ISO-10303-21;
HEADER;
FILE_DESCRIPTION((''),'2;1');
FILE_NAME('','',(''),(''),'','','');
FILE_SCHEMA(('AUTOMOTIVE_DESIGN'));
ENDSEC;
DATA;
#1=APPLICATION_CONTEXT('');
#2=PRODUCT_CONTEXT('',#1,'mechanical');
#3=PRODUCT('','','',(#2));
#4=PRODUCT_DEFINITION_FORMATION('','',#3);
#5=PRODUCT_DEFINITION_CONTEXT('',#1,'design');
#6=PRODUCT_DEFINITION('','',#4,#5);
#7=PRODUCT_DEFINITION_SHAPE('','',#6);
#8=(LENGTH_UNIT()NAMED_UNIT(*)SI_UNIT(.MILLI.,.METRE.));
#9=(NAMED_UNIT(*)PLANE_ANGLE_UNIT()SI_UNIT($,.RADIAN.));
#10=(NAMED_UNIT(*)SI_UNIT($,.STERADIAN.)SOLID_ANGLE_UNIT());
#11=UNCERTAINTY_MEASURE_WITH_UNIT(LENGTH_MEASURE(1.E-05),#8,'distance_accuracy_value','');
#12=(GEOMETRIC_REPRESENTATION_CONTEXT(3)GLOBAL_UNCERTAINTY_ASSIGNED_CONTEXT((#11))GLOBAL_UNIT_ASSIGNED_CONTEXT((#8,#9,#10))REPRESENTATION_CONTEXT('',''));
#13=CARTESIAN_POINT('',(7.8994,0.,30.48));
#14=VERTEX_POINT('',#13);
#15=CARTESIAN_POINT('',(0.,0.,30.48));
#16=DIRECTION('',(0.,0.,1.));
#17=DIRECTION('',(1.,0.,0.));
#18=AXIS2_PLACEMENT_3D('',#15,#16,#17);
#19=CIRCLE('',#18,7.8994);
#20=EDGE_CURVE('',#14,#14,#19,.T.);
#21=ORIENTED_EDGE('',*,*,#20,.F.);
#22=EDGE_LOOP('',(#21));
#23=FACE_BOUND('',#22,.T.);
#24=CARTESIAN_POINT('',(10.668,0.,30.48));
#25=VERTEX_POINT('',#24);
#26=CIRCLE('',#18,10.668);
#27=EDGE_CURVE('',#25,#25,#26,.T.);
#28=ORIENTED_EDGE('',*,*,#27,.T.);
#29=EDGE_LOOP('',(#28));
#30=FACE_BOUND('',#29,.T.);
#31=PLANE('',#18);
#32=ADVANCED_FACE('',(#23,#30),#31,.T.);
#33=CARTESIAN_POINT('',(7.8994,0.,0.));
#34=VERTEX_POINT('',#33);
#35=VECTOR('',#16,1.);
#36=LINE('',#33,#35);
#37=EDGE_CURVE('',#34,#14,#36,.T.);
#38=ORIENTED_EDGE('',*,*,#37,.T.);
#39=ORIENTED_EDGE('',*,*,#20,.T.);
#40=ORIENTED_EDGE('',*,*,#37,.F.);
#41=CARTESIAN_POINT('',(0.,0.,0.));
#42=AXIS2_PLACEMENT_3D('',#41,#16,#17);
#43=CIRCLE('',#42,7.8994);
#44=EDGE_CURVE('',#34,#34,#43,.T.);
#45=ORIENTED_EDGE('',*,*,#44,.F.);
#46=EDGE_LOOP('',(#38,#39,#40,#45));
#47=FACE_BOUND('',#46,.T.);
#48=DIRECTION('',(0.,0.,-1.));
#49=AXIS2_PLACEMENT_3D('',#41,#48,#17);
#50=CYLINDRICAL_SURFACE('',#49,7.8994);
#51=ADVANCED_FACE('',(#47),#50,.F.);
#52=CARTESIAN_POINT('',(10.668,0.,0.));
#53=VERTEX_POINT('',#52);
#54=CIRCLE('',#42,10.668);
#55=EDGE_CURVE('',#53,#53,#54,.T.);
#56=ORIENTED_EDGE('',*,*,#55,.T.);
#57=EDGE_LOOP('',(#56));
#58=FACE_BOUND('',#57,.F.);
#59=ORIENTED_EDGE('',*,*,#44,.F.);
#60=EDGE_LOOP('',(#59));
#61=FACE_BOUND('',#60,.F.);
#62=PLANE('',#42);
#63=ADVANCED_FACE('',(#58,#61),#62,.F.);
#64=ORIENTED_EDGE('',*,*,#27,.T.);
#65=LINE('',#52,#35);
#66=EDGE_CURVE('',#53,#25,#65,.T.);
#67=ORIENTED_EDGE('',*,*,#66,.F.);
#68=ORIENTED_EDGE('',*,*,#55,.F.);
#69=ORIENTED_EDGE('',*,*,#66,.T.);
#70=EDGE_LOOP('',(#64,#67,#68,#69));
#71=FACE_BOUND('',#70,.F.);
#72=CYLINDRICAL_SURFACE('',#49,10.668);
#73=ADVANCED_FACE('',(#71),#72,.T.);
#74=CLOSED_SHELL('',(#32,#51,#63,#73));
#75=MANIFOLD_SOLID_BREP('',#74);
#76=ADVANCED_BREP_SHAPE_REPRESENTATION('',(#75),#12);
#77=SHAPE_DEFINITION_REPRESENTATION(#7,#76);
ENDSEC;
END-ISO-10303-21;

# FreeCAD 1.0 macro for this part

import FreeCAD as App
import Part
import Sketcher
Q = App.Units.Quantity

doc = App.newDocument("Part")
params = doc.addObject("Spreadsheet::Sheet", "Params")
for row, (alias, value) in enumerate([
    ("sketch1_diameter", "0.84 in"),
    ("sketch1_diameter2", "0.622 in"),
    ("pad1_length", "1.2 in"),
], start=1):
    params.set(f"A{row}", alias)
    params.set(f"B{row}", "=" + value)
    params.setAlias(f"B{row}", alias)

body = doc.addObject("PartDesign::Body", "Body")

sketch1 = body.newObject("Sketcher::SketchObject", "Sketch")
sketch1.AttachmentSupport = (doc.getObject("XY_Plane"), [""])
sketch1.MapMode = "FlatFace"
sketch1.addGeometry(Part.Circle(App.Vector(0, 0, 0), App.Vector(0, 0, 1), 11), False)
sketch1.addGeometry(Part.Circle(App.Vector(0, 0, 0), App.Vector(0, 0, 1), 8), False)
sketch1.addConstraint(Sketcher.Constraint("Coincident", 0, 3, -1, 1))
sketch1.addConstraint(Sketcher.Constraint("Coincident", 1, 3, -1, 1))
sketch1.addConstraint(Sketcher.Constraint("Diameter", 0, Q("0.84 in")))
sketch1.addConstraint(Sketcher.Constraint("Diameter", 1, Q("0.622 in")))
sketch1.setExpression("Constraints[2]", "Params.sketch1_diameter")
sketch1.setExpression("Constraints[3]", "Params.sketch1_diameter2")
pad1 = body.newObject("PartDesign::Pad", "Pad")
pad1.Profile = sketch1
pad1.setExpression("Length", "Params.pad1_length")

doc.recompute()
